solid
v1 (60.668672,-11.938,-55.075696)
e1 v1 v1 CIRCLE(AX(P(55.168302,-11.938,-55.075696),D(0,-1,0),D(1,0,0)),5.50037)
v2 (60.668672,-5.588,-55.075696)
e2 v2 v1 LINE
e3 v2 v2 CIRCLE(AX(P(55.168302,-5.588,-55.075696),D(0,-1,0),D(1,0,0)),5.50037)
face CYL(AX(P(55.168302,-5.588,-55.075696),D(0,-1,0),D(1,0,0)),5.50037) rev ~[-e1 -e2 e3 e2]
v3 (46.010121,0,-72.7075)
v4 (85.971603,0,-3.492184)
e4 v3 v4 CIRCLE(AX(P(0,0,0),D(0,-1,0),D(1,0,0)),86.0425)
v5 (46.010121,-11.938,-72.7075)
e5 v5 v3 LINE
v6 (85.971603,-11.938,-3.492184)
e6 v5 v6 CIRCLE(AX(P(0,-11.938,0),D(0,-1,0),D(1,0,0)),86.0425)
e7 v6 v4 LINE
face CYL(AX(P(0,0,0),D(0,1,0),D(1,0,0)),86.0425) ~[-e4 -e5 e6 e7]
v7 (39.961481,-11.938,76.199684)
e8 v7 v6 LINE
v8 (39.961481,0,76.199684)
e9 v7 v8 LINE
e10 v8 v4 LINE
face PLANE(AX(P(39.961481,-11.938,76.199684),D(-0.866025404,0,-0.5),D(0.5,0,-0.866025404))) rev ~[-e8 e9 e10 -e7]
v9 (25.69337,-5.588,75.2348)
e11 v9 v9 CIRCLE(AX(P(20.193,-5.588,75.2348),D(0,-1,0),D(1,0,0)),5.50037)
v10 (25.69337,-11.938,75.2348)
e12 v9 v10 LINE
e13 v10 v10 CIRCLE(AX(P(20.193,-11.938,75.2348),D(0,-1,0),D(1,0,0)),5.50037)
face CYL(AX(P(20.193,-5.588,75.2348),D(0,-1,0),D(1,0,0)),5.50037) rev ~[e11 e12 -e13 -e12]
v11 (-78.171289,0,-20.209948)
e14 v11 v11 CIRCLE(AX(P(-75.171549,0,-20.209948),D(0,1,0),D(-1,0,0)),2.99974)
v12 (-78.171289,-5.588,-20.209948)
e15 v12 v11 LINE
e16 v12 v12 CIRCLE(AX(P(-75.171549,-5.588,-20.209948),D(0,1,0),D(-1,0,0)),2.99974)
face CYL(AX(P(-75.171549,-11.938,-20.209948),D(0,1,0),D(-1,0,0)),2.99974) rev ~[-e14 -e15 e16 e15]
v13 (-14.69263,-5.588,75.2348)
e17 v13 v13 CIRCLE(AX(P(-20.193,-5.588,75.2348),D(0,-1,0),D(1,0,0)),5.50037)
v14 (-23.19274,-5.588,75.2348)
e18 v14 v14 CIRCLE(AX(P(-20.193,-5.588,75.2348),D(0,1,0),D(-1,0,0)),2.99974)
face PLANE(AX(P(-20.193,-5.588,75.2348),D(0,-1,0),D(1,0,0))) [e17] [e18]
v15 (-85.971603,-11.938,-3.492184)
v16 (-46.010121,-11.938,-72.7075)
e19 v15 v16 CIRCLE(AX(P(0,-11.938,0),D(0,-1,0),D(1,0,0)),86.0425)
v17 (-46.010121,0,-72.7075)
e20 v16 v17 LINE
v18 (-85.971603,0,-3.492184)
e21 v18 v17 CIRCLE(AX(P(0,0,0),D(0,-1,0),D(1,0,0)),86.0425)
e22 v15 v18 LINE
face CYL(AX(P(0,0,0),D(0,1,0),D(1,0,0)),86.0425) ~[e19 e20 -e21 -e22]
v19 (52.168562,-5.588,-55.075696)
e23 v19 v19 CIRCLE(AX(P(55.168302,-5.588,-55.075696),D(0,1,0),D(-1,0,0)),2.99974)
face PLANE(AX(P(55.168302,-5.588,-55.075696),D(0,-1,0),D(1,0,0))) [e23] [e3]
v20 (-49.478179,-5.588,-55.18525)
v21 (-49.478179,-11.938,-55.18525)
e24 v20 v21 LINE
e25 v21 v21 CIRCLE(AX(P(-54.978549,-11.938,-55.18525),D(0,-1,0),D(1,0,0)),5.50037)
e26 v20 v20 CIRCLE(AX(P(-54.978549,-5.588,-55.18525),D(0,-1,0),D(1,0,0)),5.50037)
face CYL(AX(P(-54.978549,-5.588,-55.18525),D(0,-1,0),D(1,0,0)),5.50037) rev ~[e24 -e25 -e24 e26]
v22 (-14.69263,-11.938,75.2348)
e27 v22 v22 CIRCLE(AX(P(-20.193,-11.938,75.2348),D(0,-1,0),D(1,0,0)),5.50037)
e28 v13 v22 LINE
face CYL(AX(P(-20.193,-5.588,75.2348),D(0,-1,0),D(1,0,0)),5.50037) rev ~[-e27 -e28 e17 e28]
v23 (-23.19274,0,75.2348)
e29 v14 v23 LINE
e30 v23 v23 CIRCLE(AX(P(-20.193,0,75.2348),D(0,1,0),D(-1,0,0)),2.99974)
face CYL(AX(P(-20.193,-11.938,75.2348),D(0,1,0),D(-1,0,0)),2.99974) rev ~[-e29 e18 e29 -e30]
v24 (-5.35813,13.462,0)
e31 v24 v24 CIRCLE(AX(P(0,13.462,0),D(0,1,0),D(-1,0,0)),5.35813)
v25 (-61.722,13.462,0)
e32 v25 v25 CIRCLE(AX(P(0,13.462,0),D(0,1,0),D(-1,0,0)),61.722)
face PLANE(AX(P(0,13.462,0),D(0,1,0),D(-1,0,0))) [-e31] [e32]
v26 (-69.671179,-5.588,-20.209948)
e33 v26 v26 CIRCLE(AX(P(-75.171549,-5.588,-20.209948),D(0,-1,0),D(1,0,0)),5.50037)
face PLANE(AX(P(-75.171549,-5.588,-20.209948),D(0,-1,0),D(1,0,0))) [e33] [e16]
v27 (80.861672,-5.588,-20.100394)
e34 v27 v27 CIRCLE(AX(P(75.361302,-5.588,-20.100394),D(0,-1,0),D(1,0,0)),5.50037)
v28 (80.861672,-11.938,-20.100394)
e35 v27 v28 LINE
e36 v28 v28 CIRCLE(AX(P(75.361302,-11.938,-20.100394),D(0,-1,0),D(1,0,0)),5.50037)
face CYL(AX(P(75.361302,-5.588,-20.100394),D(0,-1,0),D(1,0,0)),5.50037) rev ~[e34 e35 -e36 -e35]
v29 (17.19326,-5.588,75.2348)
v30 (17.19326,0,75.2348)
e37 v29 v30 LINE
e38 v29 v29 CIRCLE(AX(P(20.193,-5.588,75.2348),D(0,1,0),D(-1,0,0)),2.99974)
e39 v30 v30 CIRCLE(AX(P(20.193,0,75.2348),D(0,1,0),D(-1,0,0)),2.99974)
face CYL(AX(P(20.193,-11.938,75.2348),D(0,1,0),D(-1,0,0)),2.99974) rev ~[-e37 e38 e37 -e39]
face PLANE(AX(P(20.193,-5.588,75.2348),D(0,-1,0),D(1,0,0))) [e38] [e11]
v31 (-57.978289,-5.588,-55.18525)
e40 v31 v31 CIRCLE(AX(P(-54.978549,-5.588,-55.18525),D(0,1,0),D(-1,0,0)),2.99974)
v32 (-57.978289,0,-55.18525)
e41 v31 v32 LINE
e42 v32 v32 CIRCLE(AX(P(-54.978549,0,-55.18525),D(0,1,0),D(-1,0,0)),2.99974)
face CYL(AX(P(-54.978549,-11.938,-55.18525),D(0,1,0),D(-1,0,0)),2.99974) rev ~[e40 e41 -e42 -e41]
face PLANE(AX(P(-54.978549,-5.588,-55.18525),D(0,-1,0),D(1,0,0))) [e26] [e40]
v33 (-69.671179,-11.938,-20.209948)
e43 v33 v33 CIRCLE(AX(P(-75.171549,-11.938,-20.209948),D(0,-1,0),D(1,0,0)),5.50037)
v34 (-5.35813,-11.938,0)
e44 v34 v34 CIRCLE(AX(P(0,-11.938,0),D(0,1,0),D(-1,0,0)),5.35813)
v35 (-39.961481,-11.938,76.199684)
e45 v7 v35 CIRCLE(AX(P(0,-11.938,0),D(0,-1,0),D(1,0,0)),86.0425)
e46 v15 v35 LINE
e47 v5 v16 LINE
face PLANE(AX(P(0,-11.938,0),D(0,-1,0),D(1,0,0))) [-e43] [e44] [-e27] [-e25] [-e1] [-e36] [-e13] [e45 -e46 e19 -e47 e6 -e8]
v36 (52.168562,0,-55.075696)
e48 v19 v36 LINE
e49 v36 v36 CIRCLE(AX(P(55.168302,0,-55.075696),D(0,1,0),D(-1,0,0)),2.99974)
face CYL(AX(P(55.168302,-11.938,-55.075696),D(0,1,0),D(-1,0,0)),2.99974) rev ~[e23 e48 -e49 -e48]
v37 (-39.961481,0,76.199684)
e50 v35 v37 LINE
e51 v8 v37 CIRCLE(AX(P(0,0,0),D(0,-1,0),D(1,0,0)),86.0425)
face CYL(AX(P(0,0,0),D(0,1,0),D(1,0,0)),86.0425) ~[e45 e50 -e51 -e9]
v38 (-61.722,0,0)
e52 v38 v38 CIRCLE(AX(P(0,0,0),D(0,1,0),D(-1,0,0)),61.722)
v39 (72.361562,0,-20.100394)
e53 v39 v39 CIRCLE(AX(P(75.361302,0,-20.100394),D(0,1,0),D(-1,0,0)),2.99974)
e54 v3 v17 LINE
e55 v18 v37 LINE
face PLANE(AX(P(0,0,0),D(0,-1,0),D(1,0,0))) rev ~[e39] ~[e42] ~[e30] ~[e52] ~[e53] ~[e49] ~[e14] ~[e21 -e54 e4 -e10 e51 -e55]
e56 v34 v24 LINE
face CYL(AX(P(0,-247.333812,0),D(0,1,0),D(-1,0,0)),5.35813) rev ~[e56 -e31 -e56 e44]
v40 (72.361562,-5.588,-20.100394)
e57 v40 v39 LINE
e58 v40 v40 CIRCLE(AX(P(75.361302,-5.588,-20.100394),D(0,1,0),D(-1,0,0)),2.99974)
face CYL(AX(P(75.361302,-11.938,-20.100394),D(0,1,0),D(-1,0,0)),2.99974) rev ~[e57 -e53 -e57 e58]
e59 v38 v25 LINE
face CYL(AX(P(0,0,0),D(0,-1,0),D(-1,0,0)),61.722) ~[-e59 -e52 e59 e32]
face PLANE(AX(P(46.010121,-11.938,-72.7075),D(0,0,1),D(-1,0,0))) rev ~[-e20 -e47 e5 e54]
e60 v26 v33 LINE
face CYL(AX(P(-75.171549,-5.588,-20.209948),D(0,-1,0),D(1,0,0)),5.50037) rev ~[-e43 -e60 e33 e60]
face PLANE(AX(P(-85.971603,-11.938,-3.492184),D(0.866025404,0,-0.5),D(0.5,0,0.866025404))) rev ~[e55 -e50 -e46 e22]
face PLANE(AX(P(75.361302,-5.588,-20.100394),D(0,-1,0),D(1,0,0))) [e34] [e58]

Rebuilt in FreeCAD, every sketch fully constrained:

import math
import FreeCAD as App
import Part
import Sketcher
Q = App.Units.Quantity

doc = App.newDocument("Part")
body = doc.addObject("PartDesign::Body", "Body")

sketch1 = body.newObject("Sketcher::SketchObject", "Sketch")
sketch1.AttachmentSupport = (doc.getObject("XZ_Plane"), [""])
sketch1.MapMode = "FlatFace"
sketch1.addGeometry(Part.Circle(App.Vector(0, 0, 0), App.Vector(0, 0, 1), 86.0425), False)
sketch1.addConstraint([
    Sketcher.Constraint("Coincident", 0, 3, -1, 1),
    Sketcher.Constraint("Diameter", 0, Q("6.775 in")),
])
pad1 = body.newObject("PartDesign::Pad", "Pad")
pad1.Profile = sketch1
pad1.Length = Q("0.47 in")

sketch2 = body.newObject("Sketcher::SketchObject", "Sketch001")
sketch2.AttachmentSupport = (doc.getObject("XZ_Plane"), [""])
sketch2.MapMode = "FlatFace"
sketch2.addGeometry(Part.Circle(App.Vector(0, 0, 0), App.Vector(0, 0, 1), 61.722), False)
sketch2.addConstraint([
    Sketcher.Constraint("Coincident", 0, 3, -1, 1),
    Sketcher.Constraint("Diameter", 0, Q("4.86 in")),
])
pad2 = body.newObject("PartDesign::Pad", "Pad001")
pad2.Profile = sketch2
pad2.Length = Q("0.53 in")
pad2.Reversed = True

sketch3 = body.newObject("Sketcher::SketchObject", "Sketch002")
sketch3.AttachmentSupport = (doc.getObject("XZ_Plane"), [""])
sketch3.MapMode = "FlatFace"
sketch3.AttachmentOffset = App.Placement(App.Vector(0, 0, 0.47 * 25.4), App.Rotation())
sketch3.addGeometry([
    Part.LineSegment(App.Vector(-85.971603, -3.492184, 0), App.Vector(-39.961481, 76.199684, 0)),
    Part.ArcOfCircle(Part.Circle(App.Vector(0, 0, 0), App.Vector(0, 0, 1), 86.0425), math.radians(117.673913), math.radians(182.326087)),
    Part.ArcOfCircle(Part.Circle(App.Vector(0, 0, 0), App.Vector(0, 0, 1), 86.0425), math.radians(0), math.radians(62.326087)),
    Part.LineSegment(App.Vector(39.961481, 76.199684, 0), App.Vector(85.971603, -3.492184, 0)),
    Part.ArcOfCircle(Part.Circle(App.Vector(0, 0, 0), App.Vector(0, 0, 1), 86.0425), math.radians(-2.326087), math.radians(0)),
    Part.ArcOfCircle(Part.Circle(App.Vector(0, 0, 0), App.Vector(0, 0, 1), 86.0425), math.radians(-122.326087), math.radians(-57.673913)),
    Part.LineSegment(App.Vector(46.010121, -72.7075, 0), App.Vector(-46.010121, -72.7075, 0)),
], False)
sketch3.addConstraint([
    Sketcher.Constraint("Coincident", 0, 1, 1, 2),
    Sketcher.Constraint("Coincident", 1, 1, 0, 2),
    Sketcher.Constraint("Coincident", 2, 2, 3, 1),
    Sketcher.Constraint("Coincident", 3, 2, 4, 1),
    Sketcher.Constraint("Tangent", 4, 2, 2, 1),
    Sketcher.Constraint("Coincident", 5, 1, 6, 2),
    Sketcher.Constraint("Coincident", 6, 1, 5, 2),
    Sketcher.Constraint("Horizontal", 6),
    Sketcher.Constraint("Coincident", 1, 3, -1, 1),
    Sketcher.Constraint("Coincident", 2, 3, -1, 1),
    Sketcher.Constraint("Coincident", 5, 3, -1, 1),
    Sketcher.Constraint("Equal", 1, 2),
    Sketcher.Constraint("Equal", 2, 4),
    Sketcher.Constraint("Equal", 4, 5),
    Sketcher.Constraint("PointOnObject", 4, 2, -1),
    Sketcher.Constraint("Horizontal", 1, 1, 2, 2),
    Sketcher.Constraint("Horizontal", 0, 1, 3, 2),
    Sketcher.Constraint("Angle", 0, Q("60 deg")),
    Sketcher.Constraint("Radius", 1, Q("3.3875 in")),
    Sketcher.Constraint("DistanceY", 5, 1, -1, 1, Q("2.8625 in")),
    Sketcher.Constraint("DistanceX", 1, 1, -1, 1, 39.961481),
])
pocket1 = body.newObject("PartDesign::Pocket", "Pocket")
pocket1.Profile = sketch3
pocket1.Type = "ThroughAll"

sketch4 = body.newObject("Sketcher::SketchObject", "Sketch003")
sketch4.AttachmentSupport = (doc.getObject("XZ_Plane"), [""])
sketch4.MapMode = "FlatFace"
sketch4.AttachmentOffset = App.Placement(App.Vector(0, 0, 0.47 * 25.4), App.Rotation())
sketch4.addGeometry([
    Part.Circle(App.Vector(20.193, 75.2348, 0), App.Vector(0, 0, 1), 2.99974),
    Part.Circle(App.Vector(-20.193, 75.2348, 0), App.Vector(0, 0, 1), 2.99974),
    Part.Circle(App.Vector(-75.171549, -20.209948, 0), App.Vector(0, 0, 1), 2.99974),
    Part.Circle(App.Vector(-54.978549, -55.18525, 0), App.Vector(0, 0, 1), 2.99974),
    Part.Circle(App.Vector(55.168302, -55.075696, 0), App.Vector(0, 0, 1), 2.99974),
    Part.Circle(App.Vector(75.361302, -20.100394, 0), App.Vector(0, 0, 1), 2.99974),
], False)
sketch4.addConstraint([
    Sketcher.Constraint("Equal", 0, 1),
    Sketcher.Constraint("Equal", 1, 2),
    Sketcher.Constraint("Equal", 2, 3),
    Sketcher.Constraint("Equal", 3, 4),
    Sketcher.Constraint("Equal", 4, 5),
    Sketcher.Constraint("Symmetric", 0, 3, 1, 3, -2),
    Sketcher.Constraint("Diameter", 0, Q("0.2362 in")),
    Sketcher.Constraint("DistanceX", 1, 3, 0, 3, Q("1.59 in")),
    Sketcher.Constraint("DistanceY", -1, 1, 0, 3, Q("2.962 in")),
    Sketcher.Constraint("DistanceX", 2, 3, 3, 3, Q("0.795 in")),
    Sketcher.Constraint("DistanceX", 4, 3, 5, 3, Q("0.795 in")),
    Sketcher.Constraint("DistanceX", -1, 1, 4, 3, 55.168302),
    Sketcher.Constraint("DistanceY", 3, 3, 2, 3, 34.975302),
    Sketcher.Constraint("DistanceY", 4, 3, 5, 3, 34.975302),
    Sketcher.Constraint("DistanceX", 2, 3, -1, 1, 75.171549),
    Sketcher.Constraint("DistanceY", 2, 3, -1, 1, 20.209948),
    Sketcher.Constraint("DistanceY", 4, 3, 2, 3, 34.865748),
])
doc.recompute()
hole = body.newObject("PartDesign::Hole", "Hole")
hole.Profile = sketch4
hole.ThreadType = "None"
hole.Diameter = Q("0.2362 in")
hole.DepthType = "ThroughAll"
hole.HoleCutType = "Counterbore"
hole.HoleCutDiameter = Q("0.4331 in")
hole.HoleCutDepth = Q("0.25 in")

sketch5 = body.newObject("Sketcher::SketchObject", "Sketch004")
sketch5.AttachmentSupport = (doc.getObject("XZ_Plane"), [""])
sketch5.MapMode = "FlatFace"
sketch5.AttachmentOffset = App.Placement(App.Vector(0, 0, 0.47 * 25.4), App.Rotation())
sketch5.addGeometry(Part.Circle(App.Vector(0, 0, 0), App.Vector(0, 0, 1), 5.35813), False)
sketch5.addConstraint([
    Sketcher.Constraint("Coincident", 0, 3, -1, 1),
    Sketcher.Constraint("Diameter", 0, Q("0.4219 in")),
])
doc.recompute()
hole2 = body.newObject("PartDesign::Hole", "Hole001")
hole2.Profile = sketch5
hole2.ThreadType = "None"
hole2.Diameter = Q("0.4219 in")
hole2.DepthType = "ThroughAll"

doc.recompute()
